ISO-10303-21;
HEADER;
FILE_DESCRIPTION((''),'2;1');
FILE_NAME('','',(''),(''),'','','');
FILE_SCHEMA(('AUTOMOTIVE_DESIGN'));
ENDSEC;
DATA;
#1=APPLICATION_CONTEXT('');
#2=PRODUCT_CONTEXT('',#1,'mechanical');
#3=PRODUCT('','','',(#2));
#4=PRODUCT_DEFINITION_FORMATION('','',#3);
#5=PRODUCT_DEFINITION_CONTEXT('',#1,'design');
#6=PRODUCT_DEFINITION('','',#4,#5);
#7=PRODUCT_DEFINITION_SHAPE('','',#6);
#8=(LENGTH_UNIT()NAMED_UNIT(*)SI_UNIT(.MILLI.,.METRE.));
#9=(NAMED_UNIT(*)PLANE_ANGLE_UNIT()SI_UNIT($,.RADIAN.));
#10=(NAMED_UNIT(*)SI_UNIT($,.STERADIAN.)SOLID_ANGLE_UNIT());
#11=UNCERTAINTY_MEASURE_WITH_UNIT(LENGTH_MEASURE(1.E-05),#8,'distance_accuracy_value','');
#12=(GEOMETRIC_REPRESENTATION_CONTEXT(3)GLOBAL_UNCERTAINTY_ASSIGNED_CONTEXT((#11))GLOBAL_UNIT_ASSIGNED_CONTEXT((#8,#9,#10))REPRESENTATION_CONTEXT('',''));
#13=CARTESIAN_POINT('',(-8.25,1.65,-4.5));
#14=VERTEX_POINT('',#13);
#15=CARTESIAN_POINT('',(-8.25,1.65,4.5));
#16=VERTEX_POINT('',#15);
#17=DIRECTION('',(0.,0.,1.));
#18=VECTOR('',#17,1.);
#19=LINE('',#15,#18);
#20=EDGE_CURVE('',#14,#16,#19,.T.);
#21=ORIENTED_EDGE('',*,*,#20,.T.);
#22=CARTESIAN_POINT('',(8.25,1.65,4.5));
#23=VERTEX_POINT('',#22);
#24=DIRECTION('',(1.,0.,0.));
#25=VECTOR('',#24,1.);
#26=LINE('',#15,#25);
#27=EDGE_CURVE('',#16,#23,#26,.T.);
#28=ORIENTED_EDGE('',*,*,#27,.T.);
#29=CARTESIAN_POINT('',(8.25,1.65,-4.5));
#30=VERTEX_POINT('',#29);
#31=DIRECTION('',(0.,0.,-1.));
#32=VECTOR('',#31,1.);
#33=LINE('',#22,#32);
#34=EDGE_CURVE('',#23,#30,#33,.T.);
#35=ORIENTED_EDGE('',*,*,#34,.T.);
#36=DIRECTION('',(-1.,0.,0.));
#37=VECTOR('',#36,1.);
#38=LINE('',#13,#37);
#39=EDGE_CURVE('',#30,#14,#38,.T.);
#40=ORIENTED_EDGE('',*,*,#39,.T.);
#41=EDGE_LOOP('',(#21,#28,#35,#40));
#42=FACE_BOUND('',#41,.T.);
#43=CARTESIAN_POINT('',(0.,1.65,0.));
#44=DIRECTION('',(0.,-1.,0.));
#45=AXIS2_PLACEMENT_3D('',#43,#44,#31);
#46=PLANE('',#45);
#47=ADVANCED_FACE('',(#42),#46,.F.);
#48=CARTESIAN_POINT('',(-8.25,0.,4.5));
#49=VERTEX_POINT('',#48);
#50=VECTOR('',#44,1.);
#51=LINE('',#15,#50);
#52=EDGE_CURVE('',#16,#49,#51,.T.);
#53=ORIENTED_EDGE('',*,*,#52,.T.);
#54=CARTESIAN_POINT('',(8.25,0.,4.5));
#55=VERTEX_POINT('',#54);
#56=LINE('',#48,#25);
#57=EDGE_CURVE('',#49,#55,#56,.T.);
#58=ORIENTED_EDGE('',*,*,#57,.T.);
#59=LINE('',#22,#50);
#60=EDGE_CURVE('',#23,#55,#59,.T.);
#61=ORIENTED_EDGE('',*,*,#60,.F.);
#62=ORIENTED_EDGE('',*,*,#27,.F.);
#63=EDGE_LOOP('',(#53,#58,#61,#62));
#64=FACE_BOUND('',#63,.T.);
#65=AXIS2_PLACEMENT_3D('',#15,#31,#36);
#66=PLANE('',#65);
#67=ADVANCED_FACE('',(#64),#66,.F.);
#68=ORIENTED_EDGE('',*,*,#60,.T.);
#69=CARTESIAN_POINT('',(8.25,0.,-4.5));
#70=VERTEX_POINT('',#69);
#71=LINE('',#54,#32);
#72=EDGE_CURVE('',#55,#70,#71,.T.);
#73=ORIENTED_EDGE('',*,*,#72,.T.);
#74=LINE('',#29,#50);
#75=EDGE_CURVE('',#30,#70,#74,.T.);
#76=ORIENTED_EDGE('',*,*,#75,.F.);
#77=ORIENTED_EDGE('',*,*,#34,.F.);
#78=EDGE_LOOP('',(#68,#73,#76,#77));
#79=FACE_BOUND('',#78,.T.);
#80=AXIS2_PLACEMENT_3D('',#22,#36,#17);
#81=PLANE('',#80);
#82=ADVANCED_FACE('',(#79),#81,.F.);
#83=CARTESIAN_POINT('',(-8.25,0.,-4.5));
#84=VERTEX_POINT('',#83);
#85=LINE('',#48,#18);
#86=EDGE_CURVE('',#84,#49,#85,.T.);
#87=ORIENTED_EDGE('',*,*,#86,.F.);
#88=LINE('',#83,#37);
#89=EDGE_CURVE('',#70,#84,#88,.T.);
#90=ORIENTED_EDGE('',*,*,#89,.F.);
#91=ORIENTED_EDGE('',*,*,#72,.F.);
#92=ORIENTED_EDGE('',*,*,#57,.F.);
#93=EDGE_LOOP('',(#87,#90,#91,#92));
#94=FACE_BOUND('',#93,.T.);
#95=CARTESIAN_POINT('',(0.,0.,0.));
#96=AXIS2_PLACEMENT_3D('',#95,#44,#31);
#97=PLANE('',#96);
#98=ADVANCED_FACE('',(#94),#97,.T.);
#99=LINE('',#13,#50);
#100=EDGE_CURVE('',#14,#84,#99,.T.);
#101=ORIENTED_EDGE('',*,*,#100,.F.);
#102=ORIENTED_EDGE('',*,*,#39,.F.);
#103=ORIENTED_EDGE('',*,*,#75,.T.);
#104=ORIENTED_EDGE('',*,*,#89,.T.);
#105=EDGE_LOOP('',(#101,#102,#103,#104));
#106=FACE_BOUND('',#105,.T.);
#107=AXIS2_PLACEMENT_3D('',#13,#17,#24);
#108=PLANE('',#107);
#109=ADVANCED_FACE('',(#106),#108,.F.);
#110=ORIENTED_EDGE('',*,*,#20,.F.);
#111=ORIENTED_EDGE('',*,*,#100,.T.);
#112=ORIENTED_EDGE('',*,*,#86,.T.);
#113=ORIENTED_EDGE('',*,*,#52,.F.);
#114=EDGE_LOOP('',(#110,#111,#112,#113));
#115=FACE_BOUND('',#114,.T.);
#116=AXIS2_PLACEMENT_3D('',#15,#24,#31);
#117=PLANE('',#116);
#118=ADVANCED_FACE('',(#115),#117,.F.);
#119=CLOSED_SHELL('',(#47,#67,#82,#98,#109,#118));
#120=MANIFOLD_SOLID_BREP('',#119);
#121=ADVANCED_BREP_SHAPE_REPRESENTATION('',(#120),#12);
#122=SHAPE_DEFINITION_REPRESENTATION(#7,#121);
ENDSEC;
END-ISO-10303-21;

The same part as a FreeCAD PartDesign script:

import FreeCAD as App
import Part
import Sketcher
Q = App.Units.Quantity

doc = App.newDocument("Part")
body = doc.addObject("PartDesign::Body", "Body")

# Sketch on XZ plane
sketch1 = body.newObject("Sketcher::SketchObject", "Sketch")
sketch1.AttachmentSupport = (doc.getObject("XZ_Plane"), [""])
sketch1.MapMode = "FlatFace"
sketch1.addGeometry([
    Part.LineSegment(App.Vector(-8, -4, 0), App.Vector(-8, 4, 0)),
    Part.LineSegment(App.Vector(-8, 4, 0), App.Vector(8, 4, 0)),
    Part.LineSegment(App.Vector(8, 4, 0), App.Vector(8, -4, 0)),
    Part.LineSegment(App.Vector(8, -4, 0), App.Vector(-8, -4, 0)),
], False)
sketch1.addConstraint([
    Sketcher.Constraint("Coincident", 0, 2, 1, 1),
    Sketcher.Constraint("Coincident", 1, 2, 2, 1),
    Sketcher.Constraint("Coincident", 2, 2, 3, 1),
    Sketcher.Constraint("Coincident", 3, 2, 0, 1),
    Sketcher.Constraint("Vertical", 0),
    Sketcher.Constraint("Horizontal", 1),
    Sketcher.Constraint("Vertical", 2),
    Sketcher.Constraint("Horizontal", 3),
    Sketcher.Constraint("Symmetric", 0, 2, 2, 2, -1, 1),
    Sketcher.Constraint("DistanceY", 0, 1, 0, 2, Q("9 mm")),
    Sketcher.Constraint("DistanceX", 1, 1, 1, 2, Q("16.5 mm")),
])
pad1 = body.newObject("PartDesign::Pad", "Pad")
pad1.Profile = sketch1
pad1.Length = 1.65
pad1.Reversed = True

doc.recompute()
